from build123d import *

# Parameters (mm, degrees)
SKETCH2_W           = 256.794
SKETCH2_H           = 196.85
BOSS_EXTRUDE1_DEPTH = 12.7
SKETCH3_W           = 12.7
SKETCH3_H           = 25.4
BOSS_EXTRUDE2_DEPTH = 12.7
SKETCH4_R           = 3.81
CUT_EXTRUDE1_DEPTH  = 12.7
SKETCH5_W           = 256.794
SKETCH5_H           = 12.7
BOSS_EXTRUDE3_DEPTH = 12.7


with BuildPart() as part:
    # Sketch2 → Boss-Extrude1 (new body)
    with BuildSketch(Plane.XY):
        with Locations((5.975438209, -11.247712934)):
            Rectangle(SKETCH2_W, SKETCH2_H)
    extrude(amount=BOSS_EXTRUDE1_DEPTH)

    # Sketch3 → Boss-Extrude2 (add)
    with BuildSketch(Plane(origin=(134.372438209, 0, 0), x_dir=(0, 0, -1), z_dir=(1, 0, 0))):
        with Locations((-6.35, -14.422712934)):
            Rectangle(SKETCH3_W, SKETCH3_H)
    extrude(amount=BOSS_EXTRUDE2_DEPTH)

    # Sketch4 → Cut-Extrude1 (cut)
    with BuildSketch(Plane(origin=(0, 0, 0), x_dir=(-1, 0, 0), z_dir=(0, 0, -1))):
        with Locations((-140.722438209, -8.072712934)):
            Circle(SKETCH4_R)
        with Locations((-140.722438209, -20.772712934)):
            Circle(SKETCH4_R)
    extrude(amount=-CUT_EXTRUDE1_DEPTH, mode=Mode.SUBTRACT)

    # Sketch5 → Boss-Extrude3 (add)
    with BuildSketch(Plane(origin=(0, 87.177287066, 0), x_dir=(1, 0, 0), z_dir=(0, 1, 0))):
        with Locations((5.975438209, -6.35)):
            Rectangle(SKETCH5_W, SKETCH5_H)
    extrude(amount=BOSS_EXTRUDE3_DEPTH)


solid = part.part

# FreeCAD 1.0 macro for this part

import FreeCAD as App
import Part
import Sketcher

V = App.Vector
Q = App.Units.Quantity

doc = App.newDocument("Part")
body = doc.addObject("PartDesign::Body", "Body")

# Sketch on XY plane
sketch1 = body.newObject("Sketcher::SketchObject", "Sketch")
sketch1.AttachmentSupport = (doc.getObject("XY_Plane"), [""])
sketch1.MapMode = "FlatFace"
sketch1.addGeometry(Part.LineSegment(V(-122, 87, 0), V(-122, -110, 0)), False)
sketch1.addGeometry(Part.LineSegment(V(-122, -110, 0), V(134, -110, 0)), False)
sketch1.addGeometry(Part.LineSegment(V(134, -110, 0), V(134, 87, 0)), False)
sketch1.addGeometry(Part.LineSegment(V(134, 87, 0), V(-122, 87, 0)), False)
sketch1.addConstraint(Sketcher.Constraint("Coincident", 0, 2, 1, 1))
sketch1.addConstraint(Sketcher.Constraint("Coincident", 1, 2, 2, 1))
sketch1.addConstraint(Sketcher.Constraint("Coincident", 2, 2, 3, 1))
sketch1.addConstraint(Sketcher.Constraint("Coincident", 3, 2, 0, 1))
sketch1.addConstraint(Sketcher.Constraint("Vertical", 0))
sketch1.addConstraint(Sketcher.Constraint("Horizontal", 1))
sketch1.addConstraint(Sketcher.Constraint("Vertical", 2))
sketch1.addConstraint(Sketcher.Constraint("Horizontal", 3))
sketch1.addConstraint(Sketcher.Constraint("DistanceX", 1, 1, 1, 2, Q("10.11 in")))
sketch1.addConstraint(Sketcher.Constraint("DistanceY", 0, 2, 0, 1, Q("7.75 in")))
sketch1.addConstraint(Sketcher.Constraint("DistanceX", 0, 2, -1, 1, 122.421562))
sketch1.addConstraint(Sketcher.Constraint("DistanceY", 0, 2, -1, 1, 109.672713))
pad1 = body.newObject("PartDesign::Pad", "Pad")
pad1.Profile = sketch1
pad1.Length = Q("0.5 in")

# Sketch on YZ plane
sketch2 = body.newObject("Sketcher::SketchObject", "Sketch001")
sketch2.AttachmentSupport = (doc.getObject("YZ_Plane"), [""])
sketch2.MapMode = "FlatFace"
sketch2.AttachmentOffset = App.Placement(V(0, 0, 134.372438), App.Rotation())
sketch2.addGeometry(Part.LineSegment(V(-2, 13, 0), V(-27, 13, 0)), False)
sketch2.addGeometry(Part.LineSegment(V(-27, 13, 0), V(-27, 0, 0)), False)
sketch2.addGeometry(Part.LineSegment(V(-27, 0, 0), V(-2, 0, 0)), False)
sketch2.addGeometry(Part.LineSegment(V(-2, 0, 0), V(-2, 13, 0)), False)
sketch2.addConstraint(Sketcher.Constraint("Coincident", 0, 2, 1, 1))
sketch2.addConstraint(Sketcher.Constraint("Coincident", 1, 2, 2, 1))
sketch2.addConstraint(Sketcher.Constraint("Coincident", 2, 2, 3, 1))
sketch2.addConstraint(Sketcher.Constraint("Coincident", 3, 2, 0, 1))
sketch2.addConstraint(Sketcher.Constraint("Horizontal", 0))
sketch2.addConstraint(Sketcher.Constraint("Vertical", 1))
sketch2.addConstraint(Sketcher.Constraint("Horizontal", 2))
sketch2.addConstraint(Sketcher.Constraint("Vertical", 3))
sketch2.addConstraint(Sketcher.Constraint("PointOnObject", 1, 2, -1))
sketch2.addConstraint(Sketcher.Constraint("DistanceX", 0, 2, 0, 1, Q("1 in")))
sketch2.addConstraint(Sketcher.Constraint("DistanceY", 1, 2, 1, 1, Q("0.5 in")))
sketch2.addConstraint(Sketcher.Constraint("DistanceX", 0, 2, -1, 1, 27.122713))
pad2 = body.newObject("PartDesign::Pad", "Pad001")
pad2.Profile = sketch2
pad2.Length = Q("0.5 in")

# Sketch on XY plane
sketch3 = body.newObject("Sketcher::SketchObject", "Sketch002")
sketch3.AttachmentSupport = (doc.getObject("XY_Plane"), [""])
sketch3.MapMode = "FlatFace"
sketch3.addGeometry(Part.Circle(V(140.7, -8.1, 0), V(0, 0, 1), 3.8), False)
sketch3.addGeometry(Part.Circle(V(140.7, -20.8, 0), V(0, 0, 1), 3.8), False)
sketch3.addConstraint(Sketcher.Constraint("Equal", 0, 1))
sketch3.addConstraint(Sketcher.Constraint("Vertical", 0, 3, 1, 3))
sketch3.addConstraint(Sketcher.Constraint("Diameter", 0, Q("0.3 in")))
sketch3.addConstraint(Sketcher.Constraint("DistanceY", 1, 3, 0, 3, Q("0.5 in")))
sketch3.addConstraint(Sketcher.Constraint("DistanceX", -1, 1, 0, 3, 140.722438))
sketch3.addConstraint(Sketcher.Constraint("DistanceY", 0, 3, -1, 1, 8.072713))
pocket1 = body.newObject("PartDesign::Pocket", "Pocket")
pocket1.Profile = sketch3
pocket1.Length = Q("0.5 in")
pocket1.Reversed = True

# Sketch on XZ plane
sketch4 = body.newObject("Sketcher::SketchObject", "Sketch003")
sketch4.AttachmentSupport = (doc.getObject("XZ_Plane"), [""])
sketch4.MapMode = "FlatFace"
sketch4.AttachmentOffset = App.Placement(V(0, 0, -87.177287), App.Rotation())
sketch4.addGeometry(Part.LineSegment(V(-122, 0, 0), V(-122, 13, 0)), False)
sketch4.addGeometry(Part.LineSegment(V(-122, 13, 0), V(134, 13, 0)), False)
sketch4.addGeometry(Part.LineSegment(V(134, 13, 0), V(134, 0, 0)), False)
sketch4.addGeometry(Part.LineSegment(V(134, 0, 0), V(-122, 0, 0)), False)
sketch4.addConstraint(Sketcher.Constraint("Coincident", 0, 2, 1, 1))
sketch4.addConstraint(Sketcher.Constraint("Coincident", 1, 2, 2, 1))
sketch4.addConstraint(Sketcher.Constraint("Coincident", 2, 2, 3, 1))
sketch4.addConstraint(Sketcher.Constraint("Coincident", 3, 2, 0, 1))
sketch4.addConstraint(Sketcher.Constraint("Vertical", 0))
sketch4.addConstraint(Sketcher.Constraint("Horizontal", 1))
sketch4.addConstraint(Sketcher.Constraint("Vertical", 2))
sketch4.addConstraint(Sketcher.Constraint("Horizontal", 3))
sketch4.addConstraint(Sketcher.Constraint("PointOnObject", 2, 2, -1))
sketch4.addConstraint(Sketcher.Constraint("DistanceY", 0, 1, 0, 2, Q("0.5 in")))
sketch4.addConstraint(Sketcher.Constraint("DistanceX", 1, 1, 1, 2, Q("10.11 in")))
sketch4.addConstraint(Sketcher.Constraint("DistanceX", 0, 2, -1, 1, 122.421562))
pad3 = body.newObject("PartDesign::Pad", "Pad002")
pad3.Profile = sketch4
pad3.Length = Q("0.5 in")
pad3.Reversed = True

doc.recompute()
